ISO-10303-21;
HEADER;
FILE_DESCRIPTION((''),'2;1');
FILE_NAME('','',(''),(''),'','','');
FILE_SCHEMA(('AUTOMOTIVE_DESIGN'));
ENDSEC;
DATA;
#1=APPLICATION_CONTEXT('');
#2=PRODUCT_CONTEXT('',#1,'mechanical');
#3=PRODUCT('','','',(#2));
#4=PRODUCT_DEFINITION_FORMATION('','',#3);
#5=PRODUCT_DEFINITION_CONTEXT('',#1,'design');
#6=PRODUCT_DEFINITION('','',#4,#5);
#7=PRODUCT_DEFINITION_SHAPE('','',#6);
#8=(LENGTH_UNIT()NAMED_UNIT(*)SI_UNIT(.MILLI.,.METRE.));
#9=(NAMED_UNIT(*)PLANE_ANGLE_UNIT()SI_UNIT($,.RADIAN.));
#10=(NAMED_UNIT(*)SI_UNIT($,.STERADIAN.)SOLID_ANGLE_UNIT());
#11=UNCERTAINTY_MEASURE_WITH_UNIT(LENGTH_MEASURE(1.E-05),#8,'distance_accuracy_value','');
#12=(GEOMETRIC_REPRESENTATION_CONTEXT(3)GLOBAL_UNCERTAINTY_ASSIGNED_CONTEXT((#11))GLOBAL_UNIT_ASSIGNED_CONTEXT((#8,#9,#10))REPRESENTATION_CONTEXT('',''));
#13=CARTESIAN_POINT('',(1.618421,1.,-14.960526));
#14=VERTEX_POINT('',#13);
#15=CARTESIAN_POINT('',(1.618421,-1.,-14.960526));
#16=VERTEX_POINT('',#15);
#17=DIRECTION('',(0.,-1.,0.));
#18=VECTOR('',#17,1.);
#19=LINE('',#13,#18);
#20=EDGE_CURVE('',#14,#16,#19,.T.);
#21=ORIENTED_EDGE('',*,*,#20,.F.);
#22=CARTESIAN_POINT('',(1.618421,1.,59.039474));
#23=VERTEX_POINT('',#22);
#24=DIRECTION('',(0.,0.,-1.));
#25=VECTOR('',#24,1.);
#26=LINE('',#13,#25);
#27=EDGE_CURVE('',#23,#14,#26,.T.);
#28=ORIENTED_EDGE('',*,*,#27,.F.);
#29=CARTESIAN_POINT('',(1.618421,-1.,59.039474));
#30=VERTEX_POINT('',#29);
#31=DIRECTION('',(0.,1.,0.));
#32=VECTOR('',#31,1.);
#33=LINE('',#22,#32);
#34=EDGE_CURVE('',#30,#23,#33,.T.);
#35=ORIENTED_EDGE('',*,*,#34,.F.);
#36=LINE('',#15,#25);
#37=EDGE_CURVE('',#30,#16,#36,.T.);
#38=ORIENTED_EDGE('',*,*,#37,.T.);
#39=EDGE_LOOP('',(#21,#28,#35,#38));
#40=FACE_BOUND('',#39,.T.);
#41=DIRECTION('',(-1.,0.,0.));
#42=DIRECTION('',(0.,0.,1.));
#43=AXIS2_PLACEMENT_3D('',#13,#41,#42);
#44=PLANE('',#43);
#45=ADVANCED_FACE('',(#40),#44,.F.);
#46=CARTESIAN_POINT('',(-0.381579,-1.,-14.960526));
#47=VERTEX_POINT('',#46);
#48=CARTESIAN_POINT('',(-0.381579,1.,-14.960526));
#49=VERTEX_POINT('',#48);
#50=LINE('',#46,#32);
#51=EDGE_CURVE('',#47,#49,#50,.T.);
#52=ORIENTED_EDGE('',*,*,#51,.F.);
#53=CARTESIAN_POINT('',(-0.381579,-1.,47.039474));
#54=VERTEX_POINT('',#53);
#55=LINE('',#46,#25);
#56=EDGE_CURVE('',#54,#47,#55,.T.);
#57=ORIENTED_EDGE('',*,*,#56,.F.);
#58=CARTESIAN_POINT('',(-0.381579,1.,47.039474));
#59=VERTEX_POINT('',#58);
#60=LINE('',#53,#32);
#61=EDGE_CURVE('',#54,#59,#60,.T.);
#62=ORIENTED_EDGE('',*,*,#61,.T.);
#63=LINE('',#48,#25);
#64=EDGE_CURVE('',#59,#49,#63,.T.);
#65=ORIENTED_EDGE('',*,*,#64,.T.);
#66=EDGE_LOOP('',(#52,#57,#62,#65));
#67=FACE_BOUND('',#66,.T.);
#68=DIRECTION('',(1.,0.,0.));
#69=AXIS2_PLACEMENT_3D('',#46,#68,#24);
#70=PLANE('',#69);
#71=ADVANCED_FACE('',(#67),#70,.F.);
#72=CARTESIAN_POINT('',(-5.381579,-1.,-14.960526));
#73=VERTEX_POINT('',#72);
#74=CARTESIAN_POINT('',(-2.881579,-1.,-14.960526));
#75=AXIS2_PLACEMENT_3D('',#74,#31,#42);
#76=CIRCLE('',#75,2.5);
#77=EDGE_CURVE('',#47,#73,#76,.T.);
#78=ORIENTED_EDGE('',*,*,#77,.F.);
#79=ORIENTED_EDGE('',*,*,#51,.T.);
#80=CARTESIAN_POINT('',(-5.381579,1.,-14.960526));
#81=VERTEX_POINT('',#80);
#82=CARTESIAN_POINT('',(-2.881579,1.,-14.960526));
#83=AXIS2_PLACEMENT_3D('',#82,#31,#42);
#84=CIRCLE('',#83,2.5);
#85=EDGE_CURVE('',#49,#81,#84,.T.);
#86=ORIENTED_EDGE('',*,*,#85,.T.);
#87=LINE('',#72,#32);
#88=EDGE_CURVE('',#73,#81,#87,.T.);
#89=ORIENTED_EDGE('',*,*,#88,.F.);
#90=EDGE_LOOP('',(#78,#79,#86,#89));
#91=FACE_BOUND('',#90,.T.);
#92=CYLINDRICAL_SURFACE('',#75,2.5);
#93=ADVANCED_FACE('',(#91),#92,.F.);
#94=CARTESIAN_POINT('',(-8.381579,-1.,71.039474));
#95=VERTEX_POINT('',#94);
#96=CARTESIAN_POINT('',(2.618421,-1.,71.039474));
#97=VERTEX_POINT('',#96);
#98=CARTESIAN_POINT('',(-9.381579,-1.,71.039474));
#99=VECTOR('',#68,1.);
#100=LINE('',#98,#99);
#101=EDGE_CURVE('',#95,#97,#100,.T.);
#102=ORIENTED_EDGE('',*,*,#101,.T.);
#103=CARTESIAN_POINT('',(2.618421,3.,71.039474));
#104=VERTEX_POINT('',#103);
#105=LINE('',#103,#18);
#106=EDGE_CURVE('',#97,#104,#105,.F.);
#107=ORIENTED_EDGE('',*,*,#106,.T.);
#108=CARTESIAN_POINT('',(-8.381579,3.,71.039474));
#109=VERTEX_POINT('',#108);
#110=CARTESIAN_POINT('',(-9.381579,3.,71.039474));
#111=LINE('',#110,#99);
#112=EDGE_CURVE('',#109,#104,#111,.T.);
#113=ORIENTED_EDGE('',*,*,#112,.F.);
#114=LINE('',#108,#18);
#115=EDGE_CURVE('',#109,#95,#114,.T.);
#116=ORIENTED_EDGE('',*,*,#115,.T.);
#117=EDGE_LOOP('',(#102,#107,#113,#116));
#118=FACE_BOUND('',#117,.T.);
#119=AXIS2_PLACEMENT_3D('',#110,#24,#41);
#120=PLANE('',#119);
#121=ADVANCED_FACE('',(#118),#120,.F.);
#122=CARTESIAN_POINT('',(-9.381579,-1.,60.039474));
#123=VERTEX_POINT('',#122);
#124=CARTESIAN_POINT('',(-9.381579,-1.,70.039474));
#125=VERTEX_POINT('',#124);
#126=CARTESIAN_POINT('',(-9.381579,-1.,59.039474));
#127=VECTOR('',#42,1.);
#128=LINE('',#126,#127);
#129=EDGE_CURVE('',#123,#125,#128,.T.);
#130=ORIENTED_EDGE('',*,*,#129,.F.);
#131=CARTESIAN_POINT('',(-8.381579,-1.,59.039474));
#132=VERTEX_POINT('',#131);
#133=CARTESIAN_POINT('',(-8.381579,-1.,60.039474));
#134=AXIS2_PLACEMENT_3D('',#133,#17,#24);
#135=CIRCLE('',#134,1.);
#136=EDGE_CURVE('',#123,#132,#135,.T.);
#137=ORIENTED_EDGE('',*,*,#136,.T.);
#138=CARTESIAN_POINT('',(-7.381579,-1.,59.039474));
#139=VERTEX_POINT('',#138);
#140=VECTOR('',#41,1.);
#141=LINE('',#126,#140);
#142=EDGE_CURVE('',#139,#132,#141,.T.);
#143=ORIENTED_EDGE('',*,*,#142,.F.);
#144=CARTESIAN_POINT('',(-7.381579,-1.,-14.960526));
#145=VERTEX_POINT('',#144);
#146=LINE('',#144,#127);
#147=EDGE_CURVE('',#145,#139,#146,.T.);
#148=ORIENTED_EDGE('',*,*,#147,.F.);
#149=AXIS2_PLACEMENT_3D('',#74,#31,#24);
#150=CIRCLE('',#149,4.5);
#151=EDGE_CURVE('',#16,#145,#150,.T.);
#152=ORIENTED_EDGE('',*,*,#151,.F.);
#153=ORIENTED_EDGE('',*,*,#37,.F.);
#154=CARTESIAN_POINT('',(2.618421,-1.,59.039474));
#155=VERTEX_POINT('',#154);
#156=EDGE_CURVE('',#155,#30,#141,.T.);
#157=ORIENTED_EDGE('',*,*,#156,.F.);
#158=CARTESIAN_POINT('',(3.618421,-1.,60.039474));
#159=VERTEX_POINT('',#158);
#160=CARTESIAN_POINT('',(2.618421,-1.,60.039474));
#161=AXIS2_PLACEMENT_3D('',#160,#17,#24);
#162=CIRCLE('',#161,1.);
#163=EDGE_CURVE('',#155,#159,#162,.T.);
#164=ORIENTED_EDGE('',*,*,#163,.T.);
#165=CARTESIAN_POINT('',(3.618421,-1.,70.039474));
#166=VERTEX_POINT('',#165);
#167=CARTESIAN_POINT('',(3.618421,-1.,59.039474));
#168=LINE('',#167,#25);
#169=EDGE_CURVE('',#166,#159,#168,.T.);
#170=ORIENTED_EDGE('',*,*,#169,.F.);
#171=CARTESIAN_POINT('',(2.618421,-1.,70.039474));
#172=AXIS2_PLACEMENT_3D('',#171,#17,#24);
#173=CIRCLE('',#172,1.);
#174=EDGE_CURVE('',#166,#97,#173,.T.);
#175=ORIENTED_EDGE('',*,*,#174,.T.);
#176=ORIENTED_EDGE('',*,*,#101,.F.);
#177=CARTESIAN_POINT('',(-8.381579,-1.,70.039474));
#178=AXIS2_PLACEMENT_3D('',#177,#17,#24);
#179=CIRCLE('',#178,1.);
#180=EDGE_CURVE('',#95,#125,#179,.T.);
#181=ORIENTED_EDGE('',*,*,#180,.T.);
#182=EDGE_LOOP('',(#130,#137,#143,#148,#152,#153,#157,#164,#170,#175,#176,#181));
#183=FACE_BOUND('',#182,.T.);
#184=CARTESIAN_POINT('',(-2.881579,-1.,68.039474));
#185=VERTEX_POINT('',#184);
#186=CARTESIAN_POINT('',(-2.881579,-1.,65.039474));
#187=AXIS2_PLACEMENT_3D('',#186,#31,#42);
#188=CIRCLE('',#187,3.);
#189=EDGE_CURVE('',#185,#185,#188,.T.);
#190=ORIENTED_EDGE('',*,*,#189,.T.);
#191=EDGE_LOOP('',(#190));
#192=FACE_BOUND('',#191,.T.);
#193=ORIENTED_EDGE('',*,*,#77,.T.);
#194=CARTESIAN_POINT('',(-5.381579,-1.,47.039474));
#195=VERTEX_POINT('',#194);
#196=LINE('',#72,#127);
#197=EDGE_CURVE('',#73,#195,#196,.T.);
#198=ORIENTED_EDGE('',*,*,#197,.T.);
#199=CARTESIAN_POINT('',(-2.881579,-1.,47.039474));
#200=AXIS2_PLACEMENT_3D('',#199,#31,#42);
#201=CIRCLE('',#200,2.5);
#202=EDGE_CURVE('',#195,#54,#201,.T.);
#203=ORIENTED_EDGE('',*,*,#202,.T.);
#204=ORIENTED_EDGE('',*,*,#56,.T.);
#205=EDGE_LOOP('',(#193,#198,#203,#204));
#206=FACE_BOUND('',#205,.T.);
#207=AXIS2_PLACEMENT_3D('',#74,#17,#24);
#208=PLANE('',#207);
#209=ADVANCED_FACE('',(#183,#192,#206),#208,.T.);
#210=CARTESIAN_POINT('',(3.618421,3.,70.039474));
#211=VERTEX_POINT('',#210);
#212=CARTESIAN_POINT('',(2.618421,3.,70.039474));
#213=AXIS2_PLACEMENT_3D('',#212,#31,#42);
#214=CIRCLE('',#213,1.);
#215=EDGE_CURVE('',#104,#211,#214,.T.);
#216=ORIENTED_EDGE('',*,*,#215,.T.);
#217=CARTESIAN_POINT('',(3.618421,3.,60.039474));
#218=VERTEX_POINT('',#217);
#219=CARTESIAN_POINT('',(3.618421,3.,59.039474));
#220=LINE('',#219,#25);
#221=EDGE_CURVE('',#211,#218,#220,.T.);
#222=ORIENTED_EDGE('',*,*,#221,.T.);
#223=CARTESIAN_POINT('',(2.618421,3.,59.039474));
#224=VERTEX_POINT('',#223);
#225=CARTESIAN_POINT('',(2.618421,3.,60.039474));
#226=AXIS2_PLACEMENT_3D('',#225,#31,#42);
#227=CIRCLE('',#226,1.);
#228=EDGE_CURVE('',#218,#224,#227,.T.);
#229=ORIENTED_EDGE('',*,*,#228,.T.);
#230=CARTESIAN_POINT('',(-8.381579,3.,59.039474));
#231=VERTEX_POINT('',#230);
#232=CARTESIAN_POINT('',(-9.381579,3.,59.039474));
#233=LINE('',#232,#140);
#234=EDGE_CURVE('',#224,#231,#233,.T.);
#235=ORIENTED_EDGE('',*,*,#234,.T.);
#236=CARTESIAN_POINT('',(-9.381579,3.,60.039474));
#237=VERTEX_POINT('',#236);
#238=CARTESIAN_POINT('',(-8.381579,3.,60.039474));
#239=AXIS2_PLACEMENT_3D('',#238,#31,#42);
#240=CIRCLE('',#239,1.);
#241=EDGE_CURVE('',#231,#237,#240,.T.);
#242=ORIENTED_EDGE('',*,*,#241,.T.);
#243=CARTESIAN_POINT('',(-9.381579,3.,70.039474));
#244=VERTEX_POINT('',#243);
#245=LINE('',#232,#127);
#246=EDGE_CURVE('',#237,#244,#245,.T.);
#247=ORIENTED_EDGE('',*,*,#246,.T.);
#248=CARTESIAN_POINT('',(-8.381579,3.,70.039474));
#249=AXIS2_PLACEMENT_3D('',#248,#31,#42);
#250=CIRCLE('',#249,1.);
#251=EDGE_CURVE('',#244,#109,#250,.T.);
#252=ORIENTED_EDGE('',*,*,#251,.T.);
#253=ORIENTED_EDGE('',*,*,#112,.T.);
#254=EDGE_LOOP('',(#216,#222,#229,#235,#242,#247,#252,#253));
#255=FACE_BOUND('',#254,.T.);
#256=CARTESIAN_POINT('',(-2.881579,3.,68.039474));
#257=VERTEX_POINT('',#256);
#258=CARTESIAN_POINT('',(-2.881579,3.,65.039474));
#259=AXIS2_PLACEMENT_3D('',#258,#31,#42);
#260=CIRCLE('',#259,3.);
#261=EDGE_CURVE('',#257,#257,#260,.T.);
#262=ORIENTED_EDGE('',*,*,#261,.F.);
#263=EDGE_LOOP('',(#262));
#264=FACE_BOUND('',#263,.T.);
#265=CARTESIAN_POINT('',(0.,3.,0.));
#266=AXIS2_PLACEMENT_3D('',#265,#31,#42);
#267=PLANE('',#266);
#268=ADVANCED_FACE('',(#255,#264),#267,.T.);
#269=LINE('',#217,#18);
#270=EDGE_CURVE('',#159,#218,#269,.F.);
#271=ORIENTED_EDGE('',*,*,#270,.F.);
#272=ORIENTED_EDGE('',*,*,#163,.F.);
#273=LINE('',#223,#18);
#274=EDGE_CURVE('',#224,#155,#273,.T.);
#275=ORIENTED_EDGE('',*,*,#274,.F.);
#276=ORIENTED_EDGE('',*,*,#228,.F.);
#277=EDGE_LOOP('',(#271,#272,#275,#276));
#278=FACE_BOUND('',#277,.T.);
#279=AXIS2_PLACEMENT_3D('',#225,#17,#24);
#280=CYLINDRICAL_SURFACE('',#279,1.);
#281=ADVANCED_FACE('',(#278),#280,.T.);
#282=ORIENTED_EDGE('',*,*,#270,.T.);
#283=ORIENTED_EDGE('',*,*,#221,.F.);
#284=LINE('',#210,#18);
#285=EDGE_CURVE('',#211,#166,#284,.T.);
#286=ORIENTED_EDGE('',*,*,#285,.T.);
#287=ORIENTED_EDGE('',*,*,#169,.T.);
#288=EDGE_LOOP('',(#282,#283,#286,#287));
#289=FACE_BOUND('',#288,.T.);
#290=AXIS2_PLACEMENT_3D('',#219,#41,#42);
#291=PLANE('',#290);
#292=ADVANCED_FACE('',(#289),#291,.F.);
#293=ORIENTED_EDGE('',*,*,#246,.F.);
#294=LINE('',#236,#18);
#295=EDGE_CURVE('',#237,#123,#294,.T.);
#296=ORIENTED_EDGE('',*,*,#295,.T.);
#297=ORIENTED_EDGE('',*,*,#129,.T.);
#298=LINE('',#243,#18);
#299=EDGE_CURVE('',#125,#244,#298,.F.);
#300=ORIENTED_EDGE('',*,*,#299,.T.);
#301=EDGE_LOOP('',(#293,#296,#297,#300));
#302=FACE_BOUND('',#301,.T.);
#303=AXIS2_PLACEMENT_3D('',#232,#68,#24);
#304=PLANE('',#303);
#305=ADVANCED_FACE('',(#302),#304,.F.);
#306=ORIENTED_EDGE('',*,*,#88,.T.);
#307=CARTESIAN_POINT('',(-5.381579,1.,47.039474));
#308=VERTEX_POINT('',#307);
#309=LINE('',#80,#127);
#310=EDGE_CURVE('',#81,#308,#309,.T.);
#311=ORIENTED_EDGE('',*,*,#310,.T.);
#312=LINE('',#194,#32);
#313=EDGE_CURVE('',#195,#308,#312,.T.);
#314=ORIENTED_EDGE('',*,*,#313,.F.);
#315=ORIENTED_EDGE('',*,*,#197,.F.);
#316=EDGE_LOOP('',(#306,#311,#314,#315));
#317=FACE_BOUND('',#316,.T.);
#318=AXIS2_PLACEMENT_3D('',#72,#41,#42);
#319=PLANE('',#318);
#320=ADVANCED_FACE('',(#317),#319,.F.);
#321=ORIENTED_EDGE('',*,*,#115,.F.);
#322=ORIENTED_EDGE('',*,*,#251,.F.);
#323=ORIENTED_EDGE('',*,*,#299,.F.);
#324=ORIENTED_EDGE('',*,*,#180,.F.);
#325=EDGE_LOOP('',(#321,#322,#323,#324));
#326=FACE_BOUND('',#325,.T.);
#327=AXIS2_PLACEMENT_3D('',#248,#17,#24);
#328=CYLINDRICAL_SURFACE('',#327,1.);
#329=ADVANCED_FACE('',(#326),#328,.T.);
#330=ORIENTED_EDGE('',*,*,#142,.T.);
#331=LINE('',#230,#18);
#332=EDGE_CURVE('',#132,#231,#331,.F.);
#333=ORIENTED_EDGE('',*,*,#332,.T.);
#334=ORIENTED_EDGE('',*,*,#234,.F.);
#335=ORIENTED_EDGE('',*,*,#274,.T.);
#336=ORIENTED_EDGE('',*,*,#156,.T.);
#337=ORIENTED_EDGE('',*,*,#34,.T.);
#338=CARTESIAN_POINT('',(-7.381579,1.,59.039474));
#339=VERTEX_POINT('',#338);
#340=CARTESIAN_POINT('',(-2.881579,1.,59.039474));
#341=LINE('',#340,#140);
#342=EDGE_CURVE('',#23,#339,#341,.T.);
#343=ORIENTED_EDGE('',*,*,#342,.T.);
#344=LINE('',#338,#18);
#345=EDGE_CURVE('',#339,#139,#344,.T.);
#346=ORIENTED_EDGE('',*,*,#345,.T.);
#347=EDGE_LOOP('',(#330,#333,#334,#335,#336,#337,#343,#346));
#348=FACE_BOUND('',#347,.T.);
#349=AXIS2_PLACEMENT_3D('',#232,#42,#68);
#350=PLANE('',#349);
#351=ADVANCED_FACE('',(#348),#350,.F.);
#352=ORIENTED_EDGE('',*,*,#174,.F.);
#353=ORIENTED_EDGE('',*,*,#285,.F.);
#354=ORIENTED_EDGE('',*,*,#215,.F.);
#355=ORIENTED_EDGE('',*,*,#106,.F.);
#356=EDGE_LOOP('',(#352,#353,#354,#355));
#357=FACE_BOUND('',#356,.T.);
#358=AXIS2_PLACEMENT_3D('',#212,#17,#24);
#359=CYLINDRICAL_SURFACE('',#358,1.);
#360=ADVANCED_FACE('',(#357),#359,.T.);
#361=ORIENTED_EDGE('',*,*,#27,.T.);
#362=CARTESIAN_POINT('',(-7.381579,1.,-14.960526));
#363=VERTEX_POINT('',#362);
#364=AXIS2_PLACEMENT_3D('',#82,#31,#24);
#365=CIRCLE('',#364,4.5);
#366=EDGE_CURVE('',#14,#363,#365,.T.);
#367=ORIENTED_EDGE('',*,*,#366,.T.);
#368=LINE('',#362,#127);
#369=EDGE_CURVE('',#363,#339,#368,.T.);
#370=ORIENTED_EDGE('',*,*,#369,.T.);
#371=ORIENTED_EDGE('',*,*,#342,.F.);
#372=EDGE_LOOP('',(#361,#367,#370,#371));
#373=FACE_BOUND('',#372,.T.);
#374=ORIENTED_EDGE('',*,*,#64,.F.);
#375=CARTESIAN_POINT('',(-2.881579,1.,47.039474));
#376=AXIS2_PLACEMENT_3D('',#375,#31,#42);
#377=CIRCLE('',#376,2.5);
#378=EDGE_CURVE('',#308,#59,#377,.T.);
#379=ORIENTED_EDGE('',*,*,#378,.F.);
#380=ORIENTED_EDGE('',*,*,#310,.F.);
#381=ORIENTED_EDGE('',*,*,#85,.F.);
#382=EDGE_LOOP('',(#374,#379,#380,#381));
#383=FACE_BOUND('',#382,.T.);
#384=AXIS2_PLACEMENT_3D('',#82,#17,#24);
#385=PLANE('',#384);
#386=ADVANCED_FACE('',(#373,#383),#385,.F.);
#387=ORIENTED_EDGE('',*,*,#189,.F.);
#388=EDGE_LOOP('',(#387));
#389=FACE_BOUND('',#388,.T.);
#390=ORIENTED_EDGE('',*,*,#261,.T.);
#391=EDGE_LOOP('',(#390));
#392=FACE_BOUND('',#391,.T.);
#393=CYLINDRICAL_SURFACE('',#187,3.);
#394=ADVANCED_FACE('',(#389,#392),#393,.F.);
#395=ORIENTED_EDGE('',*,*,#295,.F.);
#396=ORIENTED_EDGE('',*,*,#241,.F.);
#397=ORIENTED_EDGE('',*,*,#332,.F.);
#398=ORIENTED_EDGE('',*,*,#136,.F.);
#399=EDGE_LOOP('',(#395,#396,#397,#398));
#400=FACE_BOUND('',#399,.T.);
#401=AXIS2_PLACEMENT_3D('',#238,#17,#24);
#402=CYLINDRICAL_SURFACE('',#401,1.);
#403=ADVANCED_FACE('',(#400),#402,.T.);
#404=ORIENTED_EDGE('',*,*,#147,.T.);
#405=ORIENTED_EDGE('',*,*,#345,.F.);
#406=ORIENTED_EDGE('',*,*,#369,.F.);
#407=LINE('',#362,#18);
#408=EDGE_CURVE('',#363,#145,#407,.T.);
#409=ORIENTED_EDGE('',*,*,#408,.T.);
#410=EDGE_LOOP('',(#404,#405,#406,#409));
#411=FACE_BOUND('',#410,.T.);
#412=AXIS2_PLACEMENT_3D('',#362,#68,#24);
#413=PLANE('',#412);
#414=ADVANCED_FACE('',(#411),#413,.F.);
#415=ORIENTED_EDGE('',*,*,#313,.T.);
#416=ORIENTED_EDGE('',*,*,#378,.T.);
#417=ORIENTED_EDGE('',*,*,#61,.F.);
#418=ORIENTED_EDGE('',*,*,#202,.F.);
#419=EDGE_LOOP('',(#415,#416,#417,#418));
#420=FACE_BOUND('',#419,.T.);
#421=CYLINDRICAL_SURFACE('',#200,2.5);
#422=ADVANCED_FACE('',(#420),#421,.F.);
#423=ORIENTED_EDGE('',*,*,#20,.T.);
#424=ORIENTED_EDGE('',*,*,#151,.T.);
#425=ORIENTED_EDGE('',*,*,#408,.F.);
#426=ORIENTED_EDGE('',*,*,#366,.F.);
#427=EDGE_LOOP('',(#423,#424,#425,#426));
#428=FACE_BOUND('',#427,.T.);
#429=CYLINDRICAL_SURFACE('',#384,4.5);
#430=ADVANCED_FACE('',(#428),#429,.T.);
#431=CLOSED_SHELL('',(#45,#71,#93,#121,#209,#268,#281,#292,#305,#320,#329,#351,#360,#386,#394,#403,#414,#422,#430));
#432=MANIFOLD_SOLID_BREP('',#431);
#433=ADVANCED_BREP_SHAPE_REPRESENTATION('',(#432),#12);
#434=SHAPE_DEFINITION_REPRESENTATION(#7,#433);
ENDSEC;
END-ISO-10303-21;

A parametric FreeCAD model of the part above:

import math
import FreeCAD as App
import Part
import Sketcher
Q = App.Units.Quantity


def edges_at(feature, points):
    """Names of the edges that pass closest to the given points."""
    edges = feature.Shape.Edges
    near = lambda p: min(range(len(edges)), key=lambda i: edges[i].distToShape(Part.Vertex(*p))[0])
    return sorted({f"Edge{near(p) + 1}" for p in points})


def add_polygon(sketch, points):
    """Adds a closed chain of lines whose ends are joined by coincident constraints."""
    first, n = sketch.GeometryCount, len(points)
    for a, b in zip(points, points[1:] + points[:1]):
        sketch.addGeometry(Part.LineSegment(App.Vector(*a, 0), App.Vector(*b, 0)), False)
    for i in range(n):
        sketch.addConstraint(Sketcher.Constraint("Coincident", first + i, 2, first + (i + 1) % n, 1))

doc = App.newDocument("Part")
body = doc.addObject("PartDesign::Body", "Body")

sketch1 = doc.addObject("Sketcher::SketchObject", "Sketch")
body.addObject(sketch1)
sketch1.AttachmentSupport = (doc.XZ_Plane, [""])
sketch1.MapMode = "FlatFace"
sketch1.addGeometry(Part.LineSegment(App.Vector(-7.4, -15, 0), App.Vector(-7.4, 65, 0)), False)
sketch1.addGeometry(Part.ArcOfCircle(Part.Circle(App.Vector(-2.9, 65, 0), App.Vector(0, 0, 1), 4.5), math.radians(0), math.radians(180)), False)
sketch1.addGeometry(Part.LineSegment(App.Vector(1.6, 65, 0), App.Vector(1.6, -15, 0)), False)
sketch1.addGeometry(Part.ArcOfCircle(Part.Circle(App.Vector(-2.9, -15, 0), App.Vector(0, 0, 1), 4.5), math.radians(180), math.radians(360)), False)
sketch1.addConstraint(Sketcher.Constraint("Tangent", 0, 2, 1, 2))
sketch1.addConstraint(Sketcher.Constraint("Tangent", 1, 1, 2, 1))
sketch1.addConstraint(Sketcher.Constraint("Tangent", 2, 2, 3, 2))
sketch1.addConstraint(Sketcher.Constraint("Tangent", 3, 1, 0, 1))
sketch1.addConstraint(Sketcher.Constraint("Vertical", 0))
sketch1.addConstraint(Sketcher.Constraint("Vertical", 2))
sketch1.addConstraint(Sketcher.Constraint("Radius", 1, Q("4.5 mm")))
sketch1.addConstraint(Sketcher.Constraint("DistanceY", 0, 1, 0, 2, Q("80 mm")))
sketch1.addConstraint(Sketcher.Constraint("DistanceX", 1, 3, -1, 1, Q("2.881579 mm")))
sketch1.addConstraint(Sketcher.Constraint("DistanceY", -1, 1, 1, 3, Q("65.039474 mm")))
pad1 = doc.addObject("PartDesign::Pad", "Pad")
body.addObject(pad1)
pad1.Profile = sketch1
pad1.Length = 2
pad1.Midplane = True

sketch2 = doc.addObject("Sketcher::SketchObject", "Sketch001")
body.addObject(sketch2)
sketch2.AttachmentSupport = (doc.XZ_Plane, [""])
sketch2.MapMode = "FlatFace"
sketch2.AttachmentOffset = App.Placement(App.Vector(0, 0, -1), App.Rotation())
sketch2.addGeometry(Part.LineSegment(App.Vector(-5.4, -15, 0), App.Vector(-5.4, 47, 0)), False)
sketch2.addGeometry(Part.ArcOfCircle(Part.Circle(App.Vector(-2.9, 47, 0), App.Vector(0, 0, 1), 2.5), math.radians(0), math.radians(180)), False)
sketch2.addGeometry(Part.LineSegment(App.Vector(-0.4, 47, 0), App.Vector(-0.4, -15, 0)), False)
sketch2.addGeometry(Part.ArcOfCircle(Part.Circle(App.Vector(-2.9, -15, 0), App.Vector(0, 0, 1), 2.5), math.radians(180), math.radians(360)), False)
sketch2.addConstraint(Sketcher.Constraint("Tangent", 0, 2, 1, 2))
sketch2.addConstraint(Sketcher.Constraint("Tangent", 1, 1, 2, 1))
sketch2.addConstraint(Sketcher.Constraint("Tangent", 2, 2, 3, 2))
sketch2.addConstraint(Sketcher.Constraint("Tangent", 3, 1, 0, 1))
sketch2.addConstraint(Sketcher.Constraint("Vertical", 0))
sketch2.addConstraint(Sketcher.Constraint("Vertical", 2))
sketch2.addConstraint(Sketcher.Constraint("Radius", 1, Q("2.5 mm")))
sketch2.addConstraint(Sketcher.Constraint("DistanceY", 0, 1, 0, 2, Q("62 mm")))
sketch2.addConstraint(Sketcher.Constraint("DistanceX", 1, 3, -1, 1, Q("2.881579 mm")))
sketch2.addConstraint(Sketcher.Constraint("DistanceY", -1, 1, 1, 3, Q("47.039474 mm")))
pocket1 = doc.addObject("PartDesign::Pocket", "Pocket")
body.addObject(pocket1)
pocket1.Profile = sketch2
pocket1.Length = 2
pocket1.Reversed = True

sketch3 = doc.addObject("Sketcher::SketchObject", "Sketch002")
body.addObject(sketch3)
sketch3.AttachmentSupport = (doc.XZ_Plane, [""])
sketch3.MapMode = "FlatFace"
sketch3.AttachmentOffset = App.Placement(App.Vector(0, 0, -1), App.Rotation())
add_polygon(sketch3, [(-9, 59), (-9, 71), (4, 71), (4, 59)])
sketch3.addConstraint(Sketcher.Constraint("Vertical", 0))
sketch3.addConstraint(Sketcher.Constraint("Horizontal", 1))
sketch3.addConstraint(Sketcher.Constraint("Vertical", 2))
sketch3.addConstraint(Sketcher.Constraint("Horizontal", 3))
sketch3.addConstraint(Sketcher.Constraint("DistanceX", 1, 1, 1, 2, Q("13 mm")))
sketch3.addConstraint(Sketcher.Constraint("DistanceY", 0, 1, 0, 2, Q("12 mm")))
sketch3.addConstraint(Sketcher.Constraint("DistanceX", 0, 2, -1, 1, Q("9.381579 mm")))
sketch3.addConstraint(Sketcher.Constraint("DistanceY", -1, 1, 0, 2, Q("71.039474 mm")))
pad2 = doc.addObject("PartDesign::Pad", "Pad001")
body.addObject(pad2)
pad2.Profile = sketch3
pad2.Length = 4
pad2.Midplane = True
doc.recompute()

fillet = doc.addObject("PartDesign::Fillet", "Fillet")
body.addObject(fillet)
fillet.Base = (pad2, edges_at(pad2, [
    (3.618, 1, 59.039),
    (-9.382, 1, 59.039),
    (-9.382, 1, 71.039),
    (3.618, 1, 71.039),
]))
fillet.Radius = 1

sketch4 = doc.addObject("Sketcher::SketchObject", "Sketch003")
body.addObject(sketch4)
sketch4.AttachmentSupport = (doc.XZ_Plane, [""])
sketch4.MapMode = "FlatFace"
sketch4.AttachmentOffset = App.Placement(App.Vector(0, 0, -3), App.Rotation())
sketch4.addGeometry(Part.Circle(App.Vector(-2.9, 65, 0), App.Vector(0, 0, 1), 3), False)
sketch4.addConstraint(Sketcher.Constraint("Diameter", 0, Q("6 mm")))
sketch4.addConstraint(Sketcher.Constraint("DistanceX", 0, 3, -1, 1, Q("2.881579 mm")))
sketch4.addConstraint(Sketcher.Constraint("DistanceY", -1, 1, 0, 3, Q("65.039474 mm")))
pocket2 = doc.addObject("PartDesign::Pocket", "Pocket001")
body.addObject(pocket2)
pocket2.Profile = sketch4
pocket2.Length = 4
pocket2.Reversed = True

doc.recompute()
